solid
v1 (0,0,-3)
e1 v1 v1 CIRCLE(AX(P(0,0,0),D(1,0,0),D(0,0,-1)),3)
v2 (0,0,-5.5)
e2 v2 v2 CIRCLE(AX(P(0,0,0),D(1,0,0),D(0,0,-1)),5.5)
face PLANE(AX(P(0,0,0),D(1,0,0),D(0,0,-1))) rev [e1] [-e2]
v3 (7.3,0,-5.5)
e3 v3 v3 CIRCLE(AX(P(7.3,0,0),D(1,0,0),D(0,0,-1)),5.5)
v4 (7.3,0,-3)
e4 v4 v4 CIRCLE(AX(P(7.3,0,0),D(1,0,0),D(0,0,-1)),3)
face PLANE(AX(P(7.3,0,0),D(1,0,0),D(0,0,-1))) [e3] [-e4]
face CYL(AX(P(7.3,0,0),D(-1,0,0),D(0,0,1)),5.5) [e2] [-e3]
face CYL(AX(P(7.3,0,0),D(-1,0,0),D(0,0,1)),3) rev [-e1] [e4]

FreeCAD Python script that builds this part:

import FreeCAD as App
import Part
import Sketcher

V = App.Vector

doc = App.newDocument("Part")
body = doc.addObject("PartDesign::Body", "Body")

sketch1 = body.newObject("Sketcher::SketchObject", "Sketch")
sketch1.AttachmentSupport = (doc.getObject("YZ_Plane"), [""])
sketch1.MapMode = "FlatFace"
sketch1.addGeometry(Part.Circle(V(0, 0, 0), V(0, 0, 1), 5.5), False)
sketch1.addGeometry(Part.Circle(V(0, 0, 0), V(0, 0, 1), 3), False)
sketch1.addConstraint(Sketcher.Constraint("Coincident", 0, 3, -1, 1))
sketch1.addConstraint(Sketcher.Constraint("Coincident", 1, 3, -1, 1))
sketch1.addConstraint(Sketcher.Constraint("Diameter", 0, 11.0))
sketch1.addConstraint(Sketcher.Constraint("Diameter", 1, 6.0))
pad1 = body.newObject("PartDesign::Pad", "Pad")
pad1.Profile = sketch1
pad1.Length = 7.3

doc.recompute()
